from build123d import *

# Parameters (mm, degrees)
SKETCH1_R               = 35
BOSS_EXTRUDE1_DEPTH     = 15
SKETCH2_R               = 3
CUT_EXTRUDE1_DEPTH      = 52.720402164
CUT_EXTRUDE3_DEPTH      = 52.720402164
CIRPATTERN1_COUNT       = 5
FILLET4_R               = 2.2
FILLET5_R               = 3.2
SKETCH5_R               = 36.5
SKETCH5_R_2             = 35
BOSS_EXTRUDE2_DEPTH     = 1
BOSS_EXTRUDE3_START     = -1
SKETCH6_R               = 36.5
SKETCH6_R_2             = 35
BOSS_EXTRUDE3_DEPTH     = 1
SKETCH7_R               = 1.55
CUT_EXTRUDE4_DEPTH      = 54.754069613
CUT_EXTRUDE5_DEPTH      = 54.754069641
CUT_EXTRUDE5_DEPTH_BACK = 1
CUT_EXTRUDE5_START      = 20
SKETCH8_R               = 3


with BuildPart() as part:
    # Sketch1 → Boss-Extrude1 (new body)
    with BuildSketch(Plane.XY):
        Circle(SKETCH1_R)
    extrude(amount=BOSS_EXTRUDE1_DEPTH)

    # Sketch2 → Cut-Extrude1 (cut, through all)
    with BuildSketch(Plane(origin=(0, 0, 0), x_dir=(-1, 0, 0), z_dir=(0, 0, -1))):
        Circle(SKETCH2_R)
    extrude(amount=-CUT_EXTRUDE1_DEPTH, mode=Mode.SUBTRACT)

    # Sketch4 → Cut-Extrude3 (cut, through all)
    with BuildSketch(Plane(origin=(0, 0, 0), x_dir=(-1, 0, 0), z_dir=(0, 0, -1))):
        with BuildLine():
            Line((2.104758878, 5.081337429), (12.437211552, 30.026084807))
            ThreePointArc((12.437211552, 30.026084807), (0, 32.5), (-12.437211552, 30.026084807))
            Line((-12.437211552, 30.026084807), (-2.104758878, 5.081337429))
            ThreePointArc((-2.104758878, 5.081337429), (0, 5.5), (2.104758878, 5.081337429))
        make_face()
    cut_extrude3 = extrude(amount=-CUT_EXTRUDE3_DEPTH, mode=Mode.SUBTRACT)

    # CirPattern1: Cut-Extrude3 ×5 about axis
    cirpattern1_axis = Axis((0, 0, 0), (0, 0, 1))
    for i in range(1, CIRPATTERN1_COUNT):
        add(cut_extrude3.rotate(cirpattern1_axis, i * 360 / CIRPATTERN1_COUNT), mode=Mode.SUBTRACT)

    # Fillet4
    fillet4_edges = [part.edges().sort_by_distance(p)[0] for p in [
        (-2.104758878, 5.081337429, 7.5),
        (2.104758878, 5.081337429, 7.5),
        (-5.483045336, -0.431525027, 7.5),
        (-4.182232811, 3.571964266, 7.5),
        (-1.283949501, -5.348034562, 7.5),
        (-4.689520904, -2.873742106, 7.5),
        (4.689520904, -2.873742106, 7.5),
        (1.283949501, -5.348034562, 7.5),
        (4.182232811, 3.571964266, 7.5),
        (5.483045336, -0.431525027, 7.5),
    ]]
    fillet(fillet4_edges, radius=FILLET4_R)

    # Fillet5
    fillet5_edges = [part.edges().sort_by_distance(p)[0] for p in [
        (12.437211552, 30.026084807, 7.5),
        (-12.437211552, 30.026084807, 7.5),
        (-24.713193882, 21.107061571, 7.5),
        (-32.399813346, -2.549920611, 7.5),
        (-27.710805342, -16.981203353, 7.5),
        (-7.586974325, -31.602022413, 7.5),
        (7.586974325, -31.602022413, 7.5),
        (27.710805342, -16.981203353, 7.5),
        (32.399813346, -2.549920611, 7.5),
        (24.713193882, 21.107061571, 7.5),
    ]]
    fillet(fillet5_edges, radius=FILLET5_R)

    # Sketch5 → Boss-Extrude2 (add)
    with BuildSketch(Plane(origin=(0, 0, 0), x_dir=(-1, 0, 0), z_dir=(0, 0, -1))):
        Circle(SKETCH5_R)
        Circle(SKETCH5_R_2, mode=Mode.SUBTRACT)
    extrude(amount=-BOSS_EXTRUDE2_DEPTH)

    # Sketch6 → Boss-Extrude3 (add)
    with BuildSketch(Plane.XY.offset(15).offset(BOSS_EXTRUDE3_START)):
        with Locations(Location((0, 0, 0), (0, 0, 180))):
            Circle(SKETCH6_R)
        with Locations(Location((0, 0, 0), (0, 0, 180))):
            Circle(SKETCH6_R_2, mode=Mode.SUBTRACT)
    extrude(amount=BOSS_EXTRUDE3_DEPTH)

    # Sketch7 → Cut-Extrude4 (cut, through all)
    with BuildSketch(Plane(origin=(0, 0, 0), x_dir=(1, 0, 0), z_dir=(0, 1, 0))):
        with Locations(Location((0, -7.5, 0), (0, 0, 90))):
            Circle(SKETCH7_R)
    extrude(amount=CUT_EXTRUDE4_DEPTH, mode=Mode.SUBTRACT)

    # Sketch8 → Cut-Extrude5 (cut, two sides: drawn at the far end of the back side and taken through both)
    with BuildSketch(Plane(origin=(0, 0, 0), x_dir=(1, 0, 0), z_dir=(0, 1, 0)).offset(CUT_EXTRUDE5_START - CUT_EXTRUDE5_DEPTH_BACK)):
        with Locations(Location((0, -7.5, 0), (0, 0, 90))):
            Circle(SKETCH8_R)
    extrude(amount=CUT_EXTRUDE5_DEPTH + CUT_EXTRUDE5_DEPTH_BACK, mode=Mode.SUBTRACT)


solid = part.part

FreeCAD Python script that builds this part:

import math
import FreeCAD as App
import Part
import Sketcher
from FreeCAD import Vector
Q = App.Units.Quantity


def edges_at(feature, points):
    """Names of the edges that pass closest to the given points."""
    edges = feature.Shape.Edges
    near = lambda p: min(range(len(edges)), key=lambda i: edges[i].distToShape(Part.Vertex(*p))[0])
    return sorted({f"Edge{near(p) + 1}" for p in points})

doc = App.newDocument("Part")
body = doc.addObject("PartDesign::Body", "Body")

# Sketch on XY plane
sketch1 = body.newObject("Sketcher::SketchObject", "Sketch")
sketch1.AttachmentSupport = (doc.getObject("XY_Plane"), [""])
sketch1.MapMode = "FlatFace"
sketch1.addGeometry(Part.Circle(Vector(0, 0, 0), Vector(0, 0, 1), 35), False)
sketch1.addConstraint(Sketcher.Constraint("Coincident", 0, 3, -1, 1))
sketch1.addConstraint(Sketcher.Constraint("Diameter", 0, 70.0))
pad1 = body.newObject("PartDesign::Pad", "Pad")
pad1.Profile = sketch1
pad1.Length = 15

# Sketch on XY plane
sketch2 = body.newObject("Sketcher::SketchObject", "Sketch001")
sketch2.AttachmentSupport = (doc.getObject("XY_Plane"), [""])
sketch2.MapMode = "FlatFace"
sketch2.addGeometry(Part.Circle(Vector(0, 0, 0), Vector(0, 0, 1), 3), False)
sketch2.addConstraint(Sketcher.Constraint("Coincident", 0, 3, -1, 1))
sketch2.addConstraint(Sketcher.Constraint("Diameter", 0, 6.0))
pocket1 = body.newObject("PartDesign::Pocket", "Pocket")
pocket1.Profile = sketch2
pocket1.Type = "ThroughAll"
pocket1.Reversed = True

# Sketch on XY plane
sketch3 = body.newObject("Sketcher::SketchObject", "Sketch002")
sketch3.AttachmentSupport = (doc.getObject("XY_Plane"), [""])
sketch3.MapMode = "FlatFace"
sketch3.addGeometry(Part.LineSegment(Vector(-2.1, 5.1, 0), Vector(-12.4, 30, 0)), False)
sketch3.addGeometry(Part.ArcOfCircle(Part.Circle(Vector(0, 0, 0), Vector(0, 0, 1), 32.5), math.radians(68), math.radians(112)), False)
sketch3.addGeometry(Part.LineSegment(Vector(12.4, 30, 0), Vector(2.1, 5.1, 0)), False)
sketch3.addGeometry(Part.ArcOfCircle(Part.Circle(Vector(0, 0, 0), Vector(0, 0, 1), 5.5), math.radians(68), math.radians(112)), False)
sketch3.addConstraint(Sketcher.Constraint("Coincident", 0, 2, 1, 2))
sketch3.addConstraint(Sketcher.Constraint("Coincident", 1, 1, 2, 1))
sketch3.addConstraint(Sketcher.Constraint("Coincident", 2, 2, 3, 1))
sketch3.addConstraint(Sketcher.Constraint("Coincident", 3, 2, 0, 1))
sketch3.addConstraint(Sketcher.Constraint("Coincident", 1, 3, -1, 1))
sketch3.addConstraint(Sketcher.Constraint("Coincident", 3, 3, -1, 1))
sketch3.addConstraint(Sketcher.Constraint("Horizontal", 0, 2, 1, 1))
sketch3.addConstraint(Sketcher.Constraint("Horizontal", 2, 2, 3, 2))
sketch3.addConstraint(Sketcher.Constraint("Radius", 1, 32.5))
sketch3.addConstraint(Sketcher.Constraint("Radius", 3, 5.5))
sketch3.addConstraint(Sketcher.Constraint("Angle", 0, Q("112.5 deg")))
sketch3.addConstraint(Sketcher.Constraint("DistanceX", 0, 2, -1, 1, 12.437212))
pocket2 = body.newObject("PartDesign::Pocket", "Pocket001")
pocket2.Profile = sketch3
pocket2.Type = "ThroughAll"
pocket2.Reversed = True
doc.recompute()

polarpattern = body.newObject("PartDesign::PolarPattern", "PolarPattern")
polarpattern.Originals = [pocket2]
polarpattern.Axis = (doc.getObject("Z_Axis"), [""])
polarpattern.Angle = 360
polarpattern.Occurrences = 5
body.Tip = polarpattern
doc.recompute()

fillet = body.newObject("PartDesign::Fillet", "Fillet")
fillet.Base = (polarpattern, edges_at(polarpattern, [
    (-2.105, 5.081, 7.5),
    (2.105, 5.081, 7.5),
    (-5.483, -0.432, 7.5),
    (-4.182, 3.572, 7.5),
    (-1.284, -5.348, 7.5),
    (-4.69, -2.874, 7.5),
    (4.69, -2.874, 7.5),
    (1.284, -5.348, 7.5),
    (4.182, 3.572, 7.5),
    (5.483, -0.432, 7.5),
]))
fillet.Radius = 2.2
doc.recompute()

fillet2 = body.newObject("PartDesign::Fillet", "Fillet001")
fillet2.Base = (fillet, edges_at(fillet, [
    (12.437, 30.026, 7.5),
    (-12.437, 30.026, 7.5),
    (-24.713, 21.107, 7.5),
    (-32.4, -2.55, 7.5),
    (-27.711, -16.981, 7.5),
    (-7.587, -31.602, 7.5),
    (7.587, -31.602, 7.5),
    (27.711, -16.981, 7.5),
    (32.4, -2.55, 7.5),
    (24.713, 21.107, 7.5),
]))
fillet2.Radius = 3.2

# Sketch on XY plane
sketch4 = body.newObject("Sketcher::SketchObject", "Sketch003")
sketch4.AttachmentSupport = (doc.getObject("XY_Plane"), [""])
sketch4.MapMode = "FlatFace"
sketch4.addGeometry(Part.Circle(Vector(0, 0, 0), Vector(0, 0, 1), 36), False)
sketch4.addGeometry(Part.Circle(Vector(0, 0, 0), Vector(0, 0, 1), 35), False)
sketch4.addConstraint(Sketcher.Constraint("Coincident", 0, 3, -1, 1))
sketch4.addConstraint(Sketcher.Constraint("Coincident", 1, 3, -1, 1))
sketch4.addConstraint(Sketcher.Constraint("Diameter", 0, 73.0))
sketch4.addConstraint(Sketcher.Constraint("Diameter", 1, 70.0))
pad2 = body.newObject("PartDesign::Pad", "Pad001")
pad2.Profile = sketch4
pad2.Length = 1

# Sketch on XY plane
sketch5 = body.newObject("Sketcher::SketchObject", "Sketch004")
sketch5.AttachmentSupport = (doc.getObject("XY_Plane"), [""])
sketch5.MapMode = "FlatFace"
sketch5.AttachmentOffset = App.Placement(Vector(0, 0, 14), App.Rotation())
sketch5.addGeometry(Part.Circle(Vector(0, 0, 0), Vector(0, 0, 1), 36), False)
sketch5.addGeometry(Part.Circle(Vector(0, 0, 0), Vector(0, 0, 1), 35), False)
sketch5.addConstraint(Sketcher.Constraint("Coincident", 0, 3, -1, 1))
sketch5.addConstraint(Sketcher.Constraint("Coincident", 1, 3, -1, 1))
sketch5.addConstraint(Sketcher.Constraint("Diameter", 0, 73.0))
sketch5.addConstraint(Sketcher.Constraint("Diameter", 1, 70.0))
pad3 = body.newObject("PartDesign::Pad", "Pad002")
pad3.Profile = sketch5
pad3.Length = 1

# Sketch on XZ plane
sketch6 = body.newObject("Sketcher::SketchObject", "Sketch005")
sketch6.AttachmentSupport = (doc.getObject("XZ_Plane"), [""])
sketch6.MapMode = "FlatFace"
sketch6.addGeometry(Part.Circle(Vector(0, 7.5, 0), Vector(0, 0, 1), 1.6), False)
sketch6.addConstraint(Sketcher.Constraint("PointOnObject", 0, 3, -2))
sketch6.addConstraint(Sketcher.Constraint("Diameter", 0, 3.1))
sketch6.addConstraint(Sketcher.Constraint("DistanceY", -1, 1, 0, 3, 7.5))
pocket3 = body.newObject("PartDesign::Pocket", "Pocket002")
pocket3.Profile = sketch6
pocket3.Type = "ThroughAll"

# Sketch on XZ plane
sketch7 = body.newObject("Sketcher::SketchObject", "Sketch006")
sketch7.AttachmentSupport = (doc.getObject("XZ_Plane"), [""])
sketch7.MapMode = "FlatFace"
sketch7.AttachmentOffset = App.Placement(Vector(0, 0, -20), App.Rotation())
sketch7.addGeometry(Part.Circle(Vector(0, 7.5, 0), Vector(0, 0, 1), 3), False)
sketch7.addConstraint(Sketcher.Constraint("PointOnObject", 0, 3, -2))
sketch7.addConstraint(Sketcher.Constraint("Diameter", 0, 6.0))
sketch7.addConstraint(Sketcher.Constraint("DistanceY", -1, 1, 0, 3, 7.5))
pocket4 = body.newObject("PartDesign::Pocket", "Pocket003")
pocket4.Profile = sketch7
pocket4.Type = "TwoLengths"
pocket4.Length = 54.75407
pocket4.Length2 = 1

doc.recompute()
